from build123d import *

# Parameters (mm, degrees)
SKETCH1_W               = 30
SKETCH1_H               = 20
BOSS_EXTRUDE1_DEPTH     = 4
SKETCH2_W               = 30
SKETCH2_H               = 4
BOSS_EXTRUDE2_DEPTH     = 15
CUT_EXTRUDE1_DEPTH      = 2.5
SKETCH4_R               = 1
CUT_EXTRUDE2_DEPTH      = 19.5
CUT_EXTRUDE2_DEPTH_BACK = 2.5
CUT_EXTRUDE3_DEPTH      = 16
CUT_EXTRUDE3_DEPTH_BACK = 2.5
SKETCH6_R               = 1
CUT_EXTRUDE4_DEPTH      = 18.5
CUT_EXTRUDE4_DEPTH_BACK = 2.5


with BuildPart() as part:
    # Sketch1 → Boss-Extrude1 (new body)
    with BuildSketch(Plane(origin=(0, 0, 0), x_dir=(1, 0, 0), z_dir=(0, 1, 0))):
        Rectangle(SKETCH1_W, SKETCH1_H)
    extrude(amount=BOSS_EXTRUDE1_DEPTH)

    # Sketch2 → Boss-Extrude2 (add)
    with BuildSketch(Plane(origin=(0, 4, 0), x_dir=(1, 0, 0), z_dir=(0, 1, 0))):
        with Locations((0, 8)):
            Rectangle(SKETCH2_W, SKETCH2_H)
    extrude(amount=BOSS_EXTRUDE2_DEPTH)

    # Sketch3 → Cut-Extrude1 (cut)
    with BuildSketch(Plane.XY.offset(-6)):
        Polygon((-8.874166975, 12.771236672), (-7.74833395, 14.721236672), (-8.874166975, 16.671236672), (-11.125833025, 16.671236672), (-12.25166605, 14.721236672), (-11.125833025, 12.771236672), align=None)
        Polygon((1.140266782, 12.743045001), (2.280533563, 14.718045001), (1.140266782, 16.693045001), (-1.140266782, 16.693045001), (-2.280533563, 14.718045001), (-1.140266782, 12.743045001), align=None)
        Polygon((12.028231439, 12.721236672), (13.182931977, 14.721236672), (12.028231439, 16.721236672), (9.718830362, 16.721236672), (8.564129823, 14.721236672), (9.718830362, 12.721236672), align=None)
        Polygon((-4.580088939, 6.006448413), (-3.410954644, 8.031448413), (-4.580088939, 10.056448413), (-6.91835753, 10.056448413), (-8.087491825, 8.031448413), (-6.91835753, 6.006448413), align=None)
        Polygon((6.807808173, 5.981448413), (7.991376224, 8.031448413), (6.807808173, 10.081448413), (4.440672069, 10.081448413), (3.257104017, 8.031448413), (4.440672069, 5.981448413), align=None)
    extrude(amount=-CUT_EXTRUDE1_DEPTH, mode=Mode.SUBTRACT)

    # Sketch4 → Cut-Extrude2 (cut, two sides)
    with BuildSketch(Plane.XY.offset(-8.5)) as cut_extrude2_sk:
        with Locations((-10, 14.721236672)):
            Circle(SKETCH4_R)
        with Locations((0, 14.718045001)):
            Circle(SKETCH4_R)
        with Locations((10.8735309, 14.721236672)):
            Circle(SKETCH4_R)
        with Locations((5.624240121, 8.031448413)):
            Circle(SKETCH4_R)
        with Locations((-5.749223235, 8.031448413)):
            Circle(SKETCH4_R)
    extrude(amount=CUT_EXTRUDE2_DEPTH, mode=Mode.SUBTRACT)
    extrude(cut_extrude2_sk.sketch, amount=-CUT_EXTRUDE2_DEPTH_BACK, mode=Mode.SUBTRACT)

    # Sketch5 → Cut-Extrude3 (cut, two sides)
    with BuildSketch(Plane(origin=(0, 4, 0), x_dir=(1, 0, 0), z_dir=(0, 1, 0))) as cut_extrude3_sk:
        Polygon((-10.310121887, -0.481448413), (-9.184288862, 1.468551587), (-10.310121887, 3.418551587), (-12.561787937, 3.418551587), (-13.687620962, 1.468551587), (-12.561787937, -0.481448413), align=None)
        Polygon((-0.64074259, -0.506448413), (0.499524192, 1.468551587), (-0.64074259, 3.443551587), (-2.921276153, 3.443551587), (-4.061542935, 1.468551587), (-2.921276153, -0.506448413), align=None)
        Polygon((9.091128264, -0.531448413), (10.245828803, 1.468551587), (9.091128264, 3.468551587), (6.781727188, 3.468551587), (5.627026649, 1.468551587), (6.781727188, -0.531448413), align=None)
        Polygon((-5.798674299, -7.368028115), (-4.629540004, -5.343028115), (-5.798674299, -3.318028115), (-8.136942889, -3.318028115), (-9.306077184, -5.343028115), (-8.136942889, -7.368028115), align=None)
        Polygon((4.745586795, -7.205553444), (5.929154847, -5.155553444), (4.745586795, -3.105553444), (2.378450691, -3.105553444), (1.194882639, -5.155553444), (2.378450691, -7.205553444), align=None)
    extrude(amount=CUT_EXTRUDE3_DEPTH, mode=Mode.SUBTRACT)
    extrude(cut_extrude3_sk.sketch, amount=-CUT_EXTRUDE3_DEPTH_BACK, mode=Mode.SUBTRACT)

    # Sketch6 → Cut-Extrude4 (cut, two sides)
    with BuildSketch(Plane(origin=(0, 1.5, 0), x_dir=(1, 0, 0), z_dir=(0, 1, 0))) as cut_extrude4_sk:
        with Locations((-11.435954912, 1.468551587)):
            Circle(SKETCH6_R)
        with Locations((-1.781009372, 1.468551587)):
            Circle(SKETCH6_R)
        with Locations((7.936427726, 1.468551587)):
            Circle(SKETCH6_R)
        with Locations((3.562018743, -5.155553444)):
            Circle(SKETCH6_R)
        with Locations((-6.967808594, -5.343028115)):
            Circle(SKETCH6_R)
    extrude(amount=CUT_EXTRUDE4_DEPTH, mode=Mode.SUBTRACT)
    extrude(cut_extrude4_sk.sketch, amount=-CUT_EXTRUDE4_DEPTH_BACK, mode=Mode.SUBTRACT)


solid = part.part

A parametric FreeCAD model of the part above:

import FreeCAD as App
import Part
import Sketcher
Q = App.Units.Quantity

doc = App.newDocument("Part")
body = doc.addObject("PartDesign::Body", "Body")

# Sketch on XZ plane
sketch1 = body.newObject("Sketcher::SketchObject", "Sketch")
sketch1.AttachmentSupport = (doc.getObject("XZ_Plane"), [""])
sketch1.MapMode = "FlatFace"
sketch1.addGeometry(Part.LineSegment(App.Vector(-15, -10, 0), App.Vector(-15, 10, 0)), False)
sketch1.addGeometry(Part.LineSegment(App.Vector(-15, 10, 0), App.Vector(15, 10, 0)), False)
sketch1.addGeometry(Part.LineSegment(App.Vector(15, 10, 0), App.Vector(15, -10, 0)), False)
sketch1.addGeometry(Part.LineSegment(App.Vector(15, -10, 0), App.Vector(-15, -10, 0)), False)
sketch1.addConstraint(Sketcher.Constraint("Coincident", 0, 2, 1, 1))
sketch1.addConstraint(Sketcher.Constraint("Coincident", 1, 2, 2, 1))
sketch1.addConstraint(Sketcher.Constraint("Coincident", 2, 2, 3, 1))
sketch1.addConstraint(Sketcher.Constraint("Coincident", 3, 2, 0, 1))
sketch1.addConstraint(Sketcher.Constraint("Vertical", 0))
sketch1.addConstraint(Sketcher.Constraint("Horizontal", 1))
sketch1.addConstraint(Sketcher.Constraint("Vertical", 2))
sketch1.addConstraint(Sketcher.Constraint("Horizontal", 3))
sketch1.addConstraint(Sketcher.Constraint("Symmetric", 0, 2, 2, 2, -1, 1))
sketch1.addConstraint(Sketcher.Constraint("DistanceX", 1, 1, 1, 2, 30.0))
sketch1.addConstraint(Sketcher.Constraint("DistanceY", 0, 1, 0, 2, 20.0))
pad1 = body.newObject("PartDesign::Pad", "Pad")
pad1.Profile = sketch1
pad1.Length = 4
pad1.Reversed = True

# Sketch on XZ plane
sketch2 = body.newObject("Sketcher::SketchObject", "Sketch001")
sketch2.AttachmentSupport = (doc.getObject("XZ_Plane"), [""])
sketch2.MapMode = "FlatFace"
sketch2.AttachmentOffset = App.Placement(App.Vector(0, 0, -4), App.Rotation())
sketch2.addGeometry(Part.LineSegment(App.Vector(-15, -10, 0), App.Vector(-15, -6, 0)), False)
sketch2.addGeometry(Part.LineSegment(App.Vector(-15, -6, 0), App.Vector(15, -6, 0)), False)
sketch2.addGeometry(Part.LineSegment(App.Vector(15, -6, 0), App.Vector(15, -10, 0)), False)
sketch2.addGeometry(Part.LineSegment(App.Vector(15, -10, 0), App.Vector(-15, -10, 0)), False)
sketch2.addConstraint(Sketcher.Constraint("Coincident", 0, 2, 1, 1))
sketch2.addConstraint(Sketcher.Constraint("Coincident", 1, 2, 2, 1))
sketch2.addConstraint(Sketcher.Constraint("Coincident", 2, 2, 3, 1))
sketch2.addConstraint(Sketcher.Constraint("Coincident", 3, 2, 0, 1))
sketch2.addConstraint(Sketcher.Constraint("Vertical", 0))
sketch2.addConstraint(Sketcher.Constraint("Horizontal", 1))
sketch2.addConstraint(Sketcher.Constraint("Vertical", 2))
sketch2.addConstraint(Sketcher.Constraint("Horizontal", 3))
sketch2.addConstraint(Sketcher.Constraint("DistanceX", 1, 1, 1, 2, 30.0))
sketch2.addConstraint(Sketcher.Constraint("DistanceY", 0, 1, 0, 2, 4.0))
sketch2.addConstraint(Sketcher.Constraint("DistanceX", 0, 2, -1, 1, 15.0))
sketch2.addConstraint(Sketcher.Constraint("DistanceY", 0, 2, -1, 1, 6.0))
pad2 = body.newObject("PartDesign::Pad", "Pad001")
pad2.Profile = sketch2
pad2.Length = 15
pad2.Reversed = True

# Sketch on XY plane
sketch3 = body.newObject("Sketcher::SketchObject", "Sketch002")
sketch3.AttachmentSupport = (doc.getObject("XY_Plane"), [""])
sketch3.MapMode = "FlatFace"
sketch3.AttachmentOffset = App.Placement(App.Vector(0, 0, -6), App.Rotation())
sketch3.addGeometry(Part.LineSegment(App.Vector(-8.9, 12.8, 0), App.Vector(-7.7, 14.7, 0)), False)
sketch3.addGeometry(Part.LineSegment(App.Vector(-7.7, 14.7, 0), App.Vector(-8.9, 16.7, 0)), False)
sketch3.addGeometry(Part.LineSegment(App.Vector(-8.9, 16.7, 0), App.Vector(-11.1, 16.7, 0)), False)
sketch3.addGeometry(Part.LineSegment(App.Vector(-11.1, 16.7, 0), App.Vector(-12.3, 14.7, 0)), False)
sketch3.addGeometry(Part.LineSegment(App.Vector(-12.3, 14.7, 0), App.Vector(-11.1, 12.8, 0)), False)
sketch3.addGeometry(Part.LineSegment(App.Vector(-11.1, 12.8, 0), App.Vector(-8.9, 12.8, 0)), False)
sketch3.addGeometry(Part.LineSegment(App.Vector(1.1, 12.7, 0), App.Vector(2.3, 14.7, 0)), False)
sketch3.addGeometry(Part.LineSegment(App.Vector(2.3, 14.7, 0), App.Vector(1.1, 16.7, 0)), False)
sketch3.addGeometry(Part.LineSegment(App.Vector(1.1, 16.7, 0), App.Vector(-1.1, 16.7, 0)), False)
sketch3.addGeometry(Part.LineSegment(App.Vector(-1.1, 16.7, 0), App.Vector(-2.3, 14.7, 0)), False)
sketch3.addGeometry(Part.LineSegment(App.Vector(-2.3, 14.7, 0), App.Vector(-1.1, 12.7, 0)), False)
sketch3.addGeometry(Part.LineSegment(App.Vector(-1.1, 12.7, 0), App.Vector(1.1, 12.7, 0)), False)
sketch3.addGeometry(Part.LineSegment(App.Vector(12, 12.7, 0), App.Vector(13.2, 14.7, 0)), False)
sketch3.addGeometry(Part.LineSegment(App.Vector(13.2, 14.7, 0), App.Vector(12, 16.7, 0)), False)
sketch3.addGeometry(Part.LineSegment(App.Vector(12, 16.7, 0), App.Vector(9.7, 16.7, 0)), False)
sketch3.addGeometry(Part.LineSegment(App.Vector(9.7, 16.7, 0), App.Vector(8.6, 14.7, 0)), False)
sketch3.addGeometry(Part.LineSegment(App.Vector(8.6, 14.7, 0), App.Vector(9.7, 12.7, 0)), False)
sketch3.addGeometry(Part.LineSegment(App.Vector(9.7, 12.7, 0), App.Vector(12, 12.7, 0)), False)
sketch3.addGeometry(Part.LineSegment(App.Vector(-4.6, 6, 0), App.Vector(-3.4, 8, 0)), False)
sketch3.addGeometry(Part.LineSegment(App.Vector(-3.4, 8, 0), App.Vector(-4.6, 10.1, 0)), False)
sketch3.addGeometry(Part.LineSegment(App.Vector(-4.6, 10.1, 0), App.Vector(-6.9, 10.1, 0)), False)
sketch3.addGeometry(Part.LineSegment(App.Vector(-6.9, 10.1, 0), App.Vector(-8.1, 8, 0)), False)
sketch3.addGeometry(Part.LineSegment(App.Vector(-8.1, 8, 0), App.Vector(-6.9, 6, 0)), False)
sketch3.addGeometry(Part.LineSegment(App.Vector(-6.9, 6, 0), App.Vector(-4.6, 6, 0)), False)
sketch3.addGeometry(Part.LineSegment(App.Vector(6.8, 6, 0), App.Vector(8, 8, 0)), False)
sketch3.addGeometry(Part.LineSegment(App.Vector(8, 8, 0), App.Vector(6.8, 10.1, 0)), False)
sketch3.addGeometry(Part.LineSegment(App.Vector(6.8, 10.1, 0), App.Vector(4.4, 10.1, 0)), False)
sketch3.addGeometry(Part.LineSegment(App.Vector(4.4, 10.1, 0), App.Vector(3.3, 8, 0)), False)
sketch3.addGeometry(Part.LineSegment(App.Vector(3.3, 8, 0), App.Vector(4.4, 6, 0)), False)
sketch3.addGeometry(Part.LineSegment(App.Vector(4.4, 6, 0), App.Vector(6.8, 6, 0)), False)
sketch3.addConstraint(Sketcher.Constraint("Coincident", 0, 2, 1, 1))
sketch3.addConstraint(Sketcher.Constraint("Coincident", 1, 2, 2, 1))
sketch3.addConstraint(Sketcher.Constraint("Coincident", 2, 2, 3, 1))
sketch3.addConstraint(Sketcher.Constraint("Coincident", 3, 2, 4, 1))
sketch3.addConstraint(Sketcher.Constraint("Coincident", 4, 2, 5, 1))
sketch3.addConstraint(Sketcher.Constraint("Coincident", 5, 2, 0, 1))
sketch3.addConstraint(Sketcher.Constraint("Coincident", 6, 2, 7, 1))
sketch3.addConstraint(Sketcher.Constraint("Coincident", 7, 2, 8, 1))
sketch3.addConstraint(Sketcher.Constraint("Coincident", 8, 2, 9, 1))
sketch3.addConstraint(Sketcher.Constraint("Coincident", 9, 2, 10, 1))
sketch3.addConstraint(Sketcher.Constraint("Coincident", 10, 2, 11, 1))
sketch3.addConstraint(Sketcher.Constraint("Coincident", 11, 2, 6, 1))
sketch3.addConstraint(Sketcher.Constraint("Coincident", 12, 2, 13, 1))
sketch3.addConstraint(Sketcher.Constraint("Coincident", 13, 2, 14, 1))
sketch3.addConstraint(Sketcher.Constraint("Coincident", 14, 2, 15, 1))
sketch3.addConstraint(Sketcher.Constraint("Coincident", 15, 2, 16, 1))
sketch3.addConstraint(Sketcher.Constraint("Coincident", 16, 2, 17, 1))
sketch3.addConstraint(Sketcher.Constraint("Coincident", 17, 2, 12, 1))
sketch3.addConstraint(Sketcher.Constraint("Coincident", 18, 2, 19, 1))
sketch3.addConstraint(Sketcher.Constraint("Coincident", 19, 2, 20, 1))
sketch3.addConstraint(Sketcher.Constraint("Coincident", 20, 2, 21, 1))
sketch3.addConstraint(Sketcher.Constraint("Coincident", 21, 2, 22, 1))
sketch3.addConstraint(Sketcher.Constraint("Coincident", 22, 2, 23, 1))
sketch3.addConstraint(Sketcher.Constraint("Coincident", 23, 2, 18, 1))
sketch3.addConstraint(Sketcher.Constraint("Coincident", 24, 2, 25, 1))
sketch3.addConstraint(Sketcher.Constraint("Coincident", 25, 2, 26, 1))
sketch3.addConstraint(Sketcher.Constraint("Coincident", 26, 2, 27, 1))
sketch3.addConstraint(Sketcher.Constraint("Coincident", 27, 2, 28, 1))
sketch3.addConstraint(Sketcher.Constraint("Coincident", 28, 2, 29, 1))
sketch3.addConstraint(Sketcher.Constraint("Coincident", 29, 2, 24, 1))
sketch3.addConstraint(Sketcher.Constraint("Horizontal", 2))
sketch3.addConstraint(Sketcher.Constraint("Horizontal", 5))
sketch3.addConstraint(Sketcher.Constraint("Horizontal", 8))
sketch3.addConstraint(Sketcher.Constraint("Horizontal", 11))
sketch3.addConstraint(Sketcher.Constraint("Horizontal", 14))
sketch3.addConstraint(Sketcher.Constraint("Horizontal", 17))
sketch3.addConstraint(Sketcher.Constraint("Horizontal", 20))
sketch3.addConstraint(Sketcher.Constraint("Horizontal", 23))
sketch3.addConstraint(Sketcher.Constraint("Horizontal", 26))
sketch3.addConstraint(Sketcher.Constraint("Horizontal", 29))
sketch3.addConstraint(Sketcher.Constraint("Symmetric", 6, 2, 9, 2, -2))
sketch3.addConstraint(Sketcher.Constraint("Parallel", 0, 3))
sketch3.addConstraint(Sketcher.Constraint("Parallel", 1, 4))
sketch3.addConstraint(Sketcher.Constraint("Parallel", 3, 6))
sketch3.addConstraint(Sketcher.Constraint("Parallel", 4, 7))
sketch3.addConstraint(Sketcher.Constraint("Parallel", 6, 9))
sketch3.addConstraint(Sketcher.Constraint("Parallel", 7, 10))
sketch3.addConstraint(Sketcher.Constraint("Parallel", 9, 12))
sketch3.addConstraint(Sketcher.Constraint("Parallel", 10, 13))
sketch3.addConstraint(Sketcher.Constraint("Parallel", 12, 15))
sketch3.addConstraint(Sketcher.Constraint("Parallel", 13, 16))
sketch3.addConstraint(Sketcher.Constraint("Parallel", 15, 18))
sketch3.addConstraint(Sketcher.Constraint("Parallel", 16, 19))
sketch3.addConstraint(Sketcher.Constraint("Parallel", 18, 21))
sketch3.addConstraint(Sketcher.Constraint("Parallel", 19, 22))
sketch3.addConstraint(Sketcher.Constraint("Parallel", 21, 24))
sketch3.addConstraint(Sketcher.Constraint("Parallel", 22, 25))
sketch3.addConstraint(Sketcher.Constraint("Parallel", 24, 27))
sketch3.addConstraint(Sketcher.Constraint("Parallel", 25, 28))
sketch3.addConstraint(Sketcher.Constraint("Horizontal", 0, 2, 3, 2))
sketch3.addConstraint(Sketcher.Constraint("Horizontal", 3, 2, 12, 2))
sketch3.addConstraint(Sketcher.Constraint("Horizontal", 12, 2, 15, 2))
sketch3.addConstraint(Sketcher.Constraint("Horizontal", 18, 2, 21, 2))
sketch3.addConstraint(Sketcher.Constraint("Horizontal", 21, 2, 24, 2))
sketch3.addConstraint(Sketcher.Constraint("Horizontal", 24, 2, 27, 2))
sketch3.addConstraint(Sketcher.Constraint("Vertical", 2, 2, 4, 2))
sketch3.addConstraint(Sketcher.Constraint("Vertical", 1, 2, 5, 2))
sketch3.addConstraint(Sketcher.Constraint("Vertical", 8, 2, 10, 2))
sketch3.addConstraint(Sketcher.Constraint("Vertical", 14, 2, 16, 2))
sketch3.addConstraint(Sketcher.Constraint("Vertical", 20, 2, 22, 2))
sketch3.addConstraint(Sketcher.Constraint("Vertical", 26, 2, 28, 2))
sketch3.addConstraint(Sketcher.Constraint("Angle", 0, Q("60 deg")))
sketch3.addConstraint(Sketcher.Constraint("DistanceY", 12, 2, 13, 2, 2.0))
sketch3.addConstraint(Sketcher.Constraint("DistanceY", 4, 2, 2, 2, 3.9))
sketch3.addConstraint(Sketcher.Constraint("DistanceY", 28, 2, 26, 2, 4.1))
sketch3.addConstraint(Sketcher.Constraint("DistanceY", 10, 2, 8, 2, 3.95))
sketch3.addConstraint(Sketcher.Constraint("DistanceY", 22, 2, 20, 2, 4.05))
sketch3.addConstraint(Sketcher.Constraint("DistanceX", 14, 2, 14, 1, 2.309401))
sketch3.addConstraint(Sketcher.Constraint("DistanceX", 20, 2, 20, 1, 2.338269))
sketch3.addConstraint(Sketcher.Constraint("DistanceX", 2, 2, 0, 2, 3.377499))
sketch3.addConstraint(Sketcher.Constraint("DistanceX", 5, 2, 6, 2, 11.154701))
sketch3.addConstraint(Sketcher.Constraint("DistanceX", 8, 2, 6, 2, 3.4208))
sketch3.addConstraint(Sketcher.Constraint("DistanceX", 6, 2, 12, 2, 10.902398))
sketch3.addConstraint(Sketcher.Constraint("DistanceX", 26, 2, 26, 1, 2.367136))
sketch3.addConstraint(Sketcher.Constraint("DistanceY", -1, 1, 18, 2, 8.031448))
sketch3.addConstraint(Sketcher.Constraint("DistanceX", 19, 2, -1, 1, 4.580089))
sketch3.addConstraint(Sketcher.Constraint("DistanceX", -1, 1, 25, 2, 6.807808))
sketch3.addConstraint(Sketcher.Constraint("DistanceY", 6, 2, 0, 2, 0.003192))
sketch3.addConstraint(Sketcher.Constraint("DistanceY", 18, 2, 5, 2, 4.739788))
pocket1 = body.newObject("PartDesign::Pocket", "Pocket")
pocket1.Profile = sketch3
pocket1.Length = 2.5

# Sketch on XY plane
sketch4 = body.newObject("Sketcher::SketchObject", "Sketch003")
sketch4.AttachmentSupport = (doc.getObject("XY_Plane"), [""])
sketch4.MapMode = "FlatFace"
sketch4.AttachmentOffset = App.Placement(App.Vector(0, 0, -8.5), App.Rotation())
sketch4.addGeometry(Part.Circle(App.Vector(-10, 14.7, 0), App.Vector(0, 0, 1), 1), False)
sketch4.addGeometry(Part.Circle(App.Vector(0, 14.7, 0), App.Vector(0, 0, 1), 1), False)
sketch4.addGeometry(Part.Circle(App.Vector(10.9, 14.7, 0), App.Vector(0, 0, 1), 1), False)
sketch4.addGeometry(Part.Circle(App.Vector(5.6, 8, 0), App.Vector(0, 0, 1), 1), False)
sketch4.addGeometry(Part.Circle(App.Vector(-5.7, 8, 0), App.Vector(0, 0, 1), 1), False)
sketch4.addConstraint(Sketcher.Constraint("Equal", 0, 1))
sketch4.addConstraint(Sketcher.Constraint("Equal", 1, 2))
sketch4.addConstraint(Sketcher.Constraint("Equal", 2, 3))
sketch4.addConstraint(Sketcher.Constraint("Equal", 3, 4))
sketch4.addConstraint(Sketcher.Constraint("PointOnObject", 1, 3, -2))
sketch4.addConstraint(Sketcher.Constraint("Horizontal", 0, 3, 2, 3))
sketch4.addConstraint(Sketcher.Constraint("Horizontal", 3, 3, 4, 3))
sketch4.addConstraint(Sketcher.Constraint("Diameter", 0, 2.0))
sketch4.addConstraint(Sketcher.Constraint("DistanceX", 0, 3, -1, 1, 10.0))
sketch4.addConstraint(Sketcher.Constraint("DistanceX", -1, 1, 2, 3, 10.873531))
sketch4.addConstraint(Sketcher.Constraint("DistanceX", -1, 1, 3, 3, 5.62424))
sketch4.addConstraint(Sketcher.Constraint("DistanceY", -1, 1, 3, 3, 8.031448))
sketch4.addConstraint(Sketcher.Constraint("DistanceY", 1, 3, 0, 3, 0.003192))
sketch4.addConstraint(Sketcher.Constraint("DistanceY", 3, 3, 2, 3, 6.689788))
sketch4.addConstraint(Sketcher.Constraint("DistanceX", 4, 3, -1, 1, 5.749223))
pocket2 = body.newObject("PartDesign::Pocket", "Pocket001")
pocket2.Profile = sketch4
pocket2.Type = "ThroughAll"
pocket2.Midplane = True

# Sketch on XZ plane
sketch5 = body.newObject("Sketcher::SketchObject", "Sketch004")
sketch5.AttachmentSupport = (doc.getObject("XZ_Plane"), [""])
sketch5.MapMode = "FlatFace"
sketch5.AttachmentOffset = App.Placement(App.Vector(0, 0, -4), App.Rotation())
sketch5.addGeometry(Part.LineSegment(App.Vector(-10.3, 0.5, 0), App.Vector(-9.2, -1.5, 0)), False)
sketch5.addGeometry(Part.LineSegment(App.Vector(-9.2, -1.5, 0), App.Vector(-10.3, -3.4, 0)), False)
sketch5.addGeometry(Part.LineSegment(App.Vector(-10.3, -3.4, 0), App.Vector(-12.6, -3.4, 0)), False)
sketch5.addGeometry(Part.LineSegment(App.Vector(-12.6, -3.4, 0), App.Vector(-13.7, -1.5, 0)), False)
sketch5.addGeometry(Part.LineSegment(App.Vector(-13.7, -1.5, 0), App.Vector(-12.6, 0.5, 0)), False)
sketch5.addGeometry(Part.LineSegment(App.Vector(-12.6, 0.5, 0), App.Vector(-10.3, 0.5, 0)), False)
sketch5.addGeometry(Part.LineSegment(App.Vector(-0.6, 0.5, 0), App.Vector(0.5, -1.5, 0)), False)
sketch5.addGeometry(Part.LineSegment(App.Vector(0.5, -1.5, 0), App.Vector(-0.6, -3.4, 0)), False)
sketch5.addGeometry(Part.LineSegment(App.Vector(-0.6, -3.4, 0), App.Vector(-2.9, -3.4, 0)), False)
sketch5.addGeometry(Part.LineSegment(App.Vector(-2.9, -3.4, 0), App.Vector(-4.1, -1.5, 0)), False)
sketch5.addGeometry(Part.LineSegment(App.Vector(-4.1, -1.5, 0), App.Vector(-2.9, 0.5, 0)), False)
sketch5.addGeometry(Part.LineSegment(App.Vector(-2.9, 0.5, 0), App.Vector(-0.6, 0.5, 0)), False)
sketch5.addGeometry(Part.LineSegment(App.Vector(9.1, 0.5, 0), App.Vector(10.2, -1.5, 0)), False)
sketch5.addGeometry(Part.LineSegment(App.Vector(10.2, -1.5, 0), App.Vector(9.1, -3.5, 0)), False)
sketch5.addGeometry(Part.LineSegment(App.Vector(9.1, -3.5, 0), App.Vector(6.8, -3.5, 0)), False)
sketch5.addGeometry(Part.LineSegment(App.Vector(6.8, -3.5, 0), App.Vector(5.6, -1.5, 0)), False)
sketch5.addGeometry(Part.LineSegment(App.Vector(5.6, -1.5, 0), App.Vector(6.8, 0.5, 0)), False)
sketch5.addGeometry(Part.LineSegment(App.Vector(6.8, 0.5, 0), App.Vector(9.1, 0.5, 0)), False)
sketch5.addGeometry(Part.LineSegment(App.Vector(-5.8, 7.4, 0), App.Vector(-4.6, 5.3, 0)), False)
sketch5.addGeometry(Part.LineSegment(App.Vector(-4.6, 5.3, 0), App.Vector(-5.8, 3.3, 0)), False)
sketch5.addGeometry(Part.LineSegment(App.Vector(-5.8, 3.3, 0), App.Vector(-8.1, 3.3, 0)), False)
sketch5.addGeometry(Part.LineSegment(App.Vector(-8.1, 3.3, 0), App.Vector(-9.3, 5.3, 0)), False)
sketch5.addGeometry(Part.LineSegment(App.Vector(-9.3, 5.3, 0), App.Vector(-8.1, 7.4, 0)), False)
sketch5.addGeometry(Part.LineSegment(App.Vector(-8.1, 7.4, 0), App.Vector(-5.8, 7.4, 0)), False)
sketch5.addGeometry(Part.LineSegment(App.Vector(4.7, 7.2, 0), App.Vector(5.9, 5.2, 0)), False)
sketch5.addGeometry(Part.LineSegment(App.Vector(5.9, 5.2, 0), App.Vector(4.7, 3.1, 0)), False)
sketch5.addGeometry(Part.LineSegment(App.Vector(4.7, 3.1, 0), App.Vector(2.4, 3.1, 0)), False)
sketch5.addGeometry(Part.LineSegment(App.Vector(2.4, 3.1, 0), App.Vector(1.2, 5.2, 0)), False)
sketch5.addGeometry(Part.LineSegment(App.Vector(1.2, 5.2, 0), App.Vector(2.4, 7.2, 0)), False)
sketch5.addGeometry(Part.LineSegment(App.Vector(2.4, 7.2, 0), App.Vector(4.7, 7.2, 0)), False)
sketch5.addConstraint(Sketcher.Constraint("Coincident", 0, 2, 1, 1))
sketch5.addConstraint(Sketcher.Constraint("Coincident", 1, 2, 2, 1))
sketch5.addConstraint(Sketcher.Constraint("Coincident", 2, 2, 3, 1))
sketch5.addConstraint(Sketcher.Constraint("Coincident", 3, 2, 4, 1))
sketch5.addConstraint(Sketcher.Constraint("Coincident", 4, 2, 5, 1))
sketch5.addConstraint(Sketcher.Constraint("Coincident", 5, 2, 0, 1))
sketch5.addConstraint(Sketcher.Constraint("Coincident", 6, 2, 7, 1))
sketch5.addConstraint(Sketcher.Constraint("Coincident", 7, 2, 8, 1))
sketch5.addConstraint(Sketcher.Constraint("Coincident", 8, 2, 9, 1))
sketch5.addConstraint(Sketcher.Constraint("Coincident", 9, 2, 10, 1))
sketch5.addConstraint(Sketcher.Constraint("Coincident", 10, 2, 11, 1))
sketch5.addConstraint(Sketcher.Constraint("Coincident", 11, 2, 6, 1))
sketch5.addConstraint(Sketcher.Constraint("Coincident", 12, 2, 13, 1))
sketch5.addConstraint(Sketcher.Constraint("Coincident", 13, 2, 14, 1))
sketch5.addConstraint(Sketcher.Constraint("Coincident", 14, 2, 15, 1))
sketch5.addConstraint(Sketcher.Constraint("Coincident", 15, 2, 16, 1))
sketch5.addConstraint(Sketcher.Constraint("Coincident", 16, 2, 17, 1))
sketch5.addConstraint(Sketcher.Constraint("Coincident", 17, 2, 12, 1))
sketch5.addConstraint(Sketcher.Constraint("Coincident", 18, 2, 19, 1))
sketch5.addConstraint(Sketcher.Constraint("Coincident", 19, 2, 20, 1))
sketch5.addConstraint(Sketcher.Constraint("Coincident", 20, 2, 21, 1))
sketch5.addConstraint(Sketcher.Constraint("Coincident", 21, 2, 22, 1))
sketch5.addConstraint(Sketcher.Constraint("Coincident", 22, 2, 23, 1))
sketch5.addConstraint(Sketcher.Constraint("Coincident", 23, 2, 18, 1))
sketch5.addConstraint(Sketcher.Constraint("Coincident", 24, 2, 25, 1))
sketch5.addConstraint(Sketcher.Constraint("Coincident", 25, 2, 26, 1))
sketch5.addConstraint(Sketcher.Constraint("Coincident", 26, 2, 27, 1))
sketch5.addConstraint(Sketcher.Constraint("Coincident", 27, 2, 28, 1))
sketch5.addConstraint(Sketcher.Constraint("Coincident", 28, 2, 29, 1))
sketch5.addConstraint(Sketcher.Constraint("Coincident", 29, 2, 24, 1))
sketch5.addConstraint(Sketcher.Constraint("Horizontal", 2))
sketch5.addConstraint(Sketcher.Constraint("Horizontal", 5))
sketch5.addConstraint(Sketcher.Constraint("Horizontal", 8))
sketch5.addConstraint(Sketcher.Constraint("Horizontal", 11))
sketch5.addConstraint(Sketcher.Constraint("Horizontal", 14))
sketch5.addConstraint(Sketcher.Constraint("Horizontal", 17))
sketch5.addConstraint(Sketcher.Constraint("Horizontal", 20))
sketch5.addConstraint(Sketcher.Constraint("Horizontal", 23))
sketch5.addConstraint(Sketcher.Constraint("Horizontal", 26))
sketch5.addConstraint(Sketcher.Constraint("Horizontal", 29))
sketch5.addConstraint(Sketcher.Constraint("Parallel", 0, 3))
sketch5.addConstraint(Sketcher.Constraint("Parallel", 1, 4))
sketch5.addConstraint(Sketcher.Constraint("Parallel", 3, 6))
sketch5.addConstraint(Sketcher.Constraint("Parallel", 4, 7))
sketch5.addConstraint(Sketcher.Constraint("Parallel", 6, 9))
sketch5.addConstraint(Sketcher.Constraint("Parallel", 7, 10))
sketch5.addConstraint(Sketcher.Constraint("Parallel", 9, 12))
sketch5.addConstraint(Sketcher.Constraint("Parallel", 10, 13))
sketch5.addConstraint(Sketcher.Constraint("Parallel", 12, 15))
sketch5.addConstraint(Sketcher.Constraint("Parallel", 13, 16))
sketch5.addConstraint(Sketcher.Constraint("Parallel", 15, 18))
sketch5.addConstraint(Sketcher.Constraint("Parallel", 16, 19))
sketch5.addConstraint(Sketcher.Constraint("Parallel", 18, 21))
sketch5.addConstraint(Sketcher.Constraint("Parallel", 19, 22))
sketch5.addConstraint(Sketcher.Constraint("Parallel", 21, 24))
sketch5.addConstraint(Sketcher.Constraint("Parallel", 22, 25))
sketch5.addConstraint(Sketcher.Constraint("Parallel", 24, 27))
sketch5.addConstraint(Sketcher.Constraint("Parallel", 25, 28))
sketch5.addConstraint(Sketcher.Constraint("Horizontal", 0, 2, 3, 2))
sketch5.addConstraint(Sketcher.Constraint("Horizontal", 3, 2, 6, 2))
sketch5.addConstraint(Sketcher.Constraint("Horizontal", 6, 2, 9, 2))
sketch5.addConstraint(Sketcher.Constraint("Horizontal", 9, 2, 12, 2))
sketch5.addConstraint(Sketcher.Constraint("Horizontal", 12, 2, 15, 2))
sketch5.addConstraint(Sketcher.Constraint("Horizontal", 18, 2, 21, 2))
sketch5.addConstraint(Sketcher.Constraint("Horizontal", 24, 2, 27, 2))
sketch5.addConstraint(Sketcher.Constraint("Vertical", 2, 2, 4, 2))
sketch5.addConstraint(Sketcher.Constraint("Vertical", 1, 2, 5, 2))
sketch5.addConstraint(Sketcher.Constraint("Vertical", 8, 2, 10, 2))
sketch5.addConstraint(Sketcher.Constraint("Vertical", 14, 2, 16, 2))
sketch5.addConstraint(Sketcher.Constraint("Vertical", 20, 2, 22, 2))
sketch5.addConstraint(Sketcher.Constraint("Vertical", 26, 2, 28, 2))
sketch5.addConstraint(Sketcher.Constraint("Angle", 0, Q("-60 deg")))
sketch5.addConstraint(Sketcher.Constraint("DistanceY", 13, 2, 12, 2, 2.0))
sketch5.addConstraint(Sketcher.Constraint("DistanceY", 2, 2, 4, 2, 3.9))
sketch5.addConstraint(Sketcher.Constraint("DistanceY", 26, 2, 28, 2, 4.1))
sketch5.addConstraint(Sketcher.Constraint("DistanceY", 8, 2, 10, 2, 3.95))
sketch5.addConstraint(Sketcher.Constraint("DistanceY", 20, 2, 22, 2, 4.05))
sketch5.addConstraint(Sketcher.Constraint("DistanceX", 14, 2, 14, 1, 2.309401))
sketch5.addConstraint(Sketcher.Constraint("DistanceX", 20, 2, 20, 1, 2.338269))
sketch5.addConstraint(Sketcher.Constraint("DistanceX", 2, 2, 0, 2, 3.377499))
sketch5.addConstraint(Sketcher.Constraint("DistanceX", 8, 2, 6, 2, 3.4208))
sketch5.addConstraint(Sketcher.Constraint("DistanceX", 19, 2, 10, 2, 2.877398))
sketch5.addConstraint(Sketcher.Constraint("DistanceX", 26, 2, 26, 1, 2.367136))
sketch5.addConstraint(Sketcher.Constraint("DistanceX", 0, 2, -1, 1, 9.184289))
sketch5.addConstraint(Sketcher.Constraint("DistanceY", 0, 2, -1, 1, 1.468552))
sketch5.addConstraint(Sketcher.Constraint("DistanceX", -1, 1, 12, 2, 10.245829))
sketch5.addConstraint(Sketcher.Constraint("DistanceX", 18, 2, -1, 1, 4.62954))
sketch5.addConstraint(Sketcher.Constraint("DistanceY", -1, 1, 18, 2, 5.343028))
sketch5.addConstraint(Sketcher.Constraint("DistanceX", -1, 1, 26, 2, 2.378451))
sketch5.addConstraint(Sketcher.Constraint("DistanceY", -1, 1, 24, 2, 5.155553))
pocket3 = body.newObject("PartDesign::Pocket", "Pocket002")
pocket3.Profile = sketch5
pocket3.Type = "TwoLengths"
pocket3.Length = 16
pocket3.Length2 = 2.5

# Sketch on XZ plane
sketch6 = body.newObject("Sketcher::SketchObject", "Sketch005")
sketch6.AttachmentSupport = (doc.getObject("XZ_Plane"), [""])
sketch6.MapMode = "FlatFace"
sketch6.AttachmentOffset = App.Placement(App.Vector(0, 0, -1.5), App.Rotation())
sketch6.addGeometry(Part.Circle(App.Vector(-11.4, -1.5, 0), App.Vector(0, 0, 1), 1), False)
sketch6.addGeometry(Part.Circle(App.Vector(-1.8, -1.5, 0), App.Vector(0, 0, 1), 1), False)
sketch6.addGeometry(Part.Circle(App.Vector(7.9, -1.5, 0), App.Vector(0, 0, 1), 1), False)
sketch6.addGeometry(Part.Circle(App.Vector(3.6, 5.2, 0), App.Vector(0, 0, 1), 1), False)
sketch6.addGeometry(Part.Circle(App.Vector(-7, 5.3, 0), App.Vector(0, 0, 1), 1), False)
sketch6.addConstraint(Sketcher.Constraint("Equal", 0, 1))
sketch6.addConstraint(Sketcher.Constraint("Equal", 1, 2))
sketch6.addConstraint(Sketcher.Constraint("Equal", 2, 3))
sketch6.addConstraint(Sketcher.Constraint("Equal", 3, 4))
sketch6.addConstraint(Sketcher.Constraint("Horizontal", 0, 3, 1, 3))
sketch6.addConstraint(Sketcher.Constraint("Horizontal", 1, 3, 2, 3))
sketch6.addConstraint(Sketcher.Constraint("Diameter", 0, 2.0))
sketch6.addConstraint(Sketcher.Constraint("DistanceX", 4, 3, 1, 3, 5.186799))
sketch6.addConstraint(Sketcher.Constraint("DistanceY", 0, 3, -1, 1, 1.468552))
sketch6.addConstraint(Sketcher.Constraint("DistanceX", 1, 3, -1, 1, 1.781009))
sketch6.addConstraint(Sketcher.Constraint("DistanceX", -1, 1, 3, 3, 3.562019))
sketch6.addConstraint(Sketcher.Constraint("DistanceY", -1, 1, 4, 3, 5.343028))
sketch6.addConstraint(Sketcher.Constraint("DistanceX", 3, 3, 2, 3, 4.374409))
sketch6.addConstraint(Sketcher.Constraint("DistanceX", 0, 3, -1, 1, 11.435955))
sketch6.addConstraint(Sketcher.Constraint("DistanceY", -1, 1, 3, 3, 5.155553))
pocket4 = body.newObject("PartDesign::Pocket", "Pocket003")
pocket4.Profile = sketch6
pocket4.Type = "ThroughAll"
pocket4.Midplane = True

doc.recompute()
